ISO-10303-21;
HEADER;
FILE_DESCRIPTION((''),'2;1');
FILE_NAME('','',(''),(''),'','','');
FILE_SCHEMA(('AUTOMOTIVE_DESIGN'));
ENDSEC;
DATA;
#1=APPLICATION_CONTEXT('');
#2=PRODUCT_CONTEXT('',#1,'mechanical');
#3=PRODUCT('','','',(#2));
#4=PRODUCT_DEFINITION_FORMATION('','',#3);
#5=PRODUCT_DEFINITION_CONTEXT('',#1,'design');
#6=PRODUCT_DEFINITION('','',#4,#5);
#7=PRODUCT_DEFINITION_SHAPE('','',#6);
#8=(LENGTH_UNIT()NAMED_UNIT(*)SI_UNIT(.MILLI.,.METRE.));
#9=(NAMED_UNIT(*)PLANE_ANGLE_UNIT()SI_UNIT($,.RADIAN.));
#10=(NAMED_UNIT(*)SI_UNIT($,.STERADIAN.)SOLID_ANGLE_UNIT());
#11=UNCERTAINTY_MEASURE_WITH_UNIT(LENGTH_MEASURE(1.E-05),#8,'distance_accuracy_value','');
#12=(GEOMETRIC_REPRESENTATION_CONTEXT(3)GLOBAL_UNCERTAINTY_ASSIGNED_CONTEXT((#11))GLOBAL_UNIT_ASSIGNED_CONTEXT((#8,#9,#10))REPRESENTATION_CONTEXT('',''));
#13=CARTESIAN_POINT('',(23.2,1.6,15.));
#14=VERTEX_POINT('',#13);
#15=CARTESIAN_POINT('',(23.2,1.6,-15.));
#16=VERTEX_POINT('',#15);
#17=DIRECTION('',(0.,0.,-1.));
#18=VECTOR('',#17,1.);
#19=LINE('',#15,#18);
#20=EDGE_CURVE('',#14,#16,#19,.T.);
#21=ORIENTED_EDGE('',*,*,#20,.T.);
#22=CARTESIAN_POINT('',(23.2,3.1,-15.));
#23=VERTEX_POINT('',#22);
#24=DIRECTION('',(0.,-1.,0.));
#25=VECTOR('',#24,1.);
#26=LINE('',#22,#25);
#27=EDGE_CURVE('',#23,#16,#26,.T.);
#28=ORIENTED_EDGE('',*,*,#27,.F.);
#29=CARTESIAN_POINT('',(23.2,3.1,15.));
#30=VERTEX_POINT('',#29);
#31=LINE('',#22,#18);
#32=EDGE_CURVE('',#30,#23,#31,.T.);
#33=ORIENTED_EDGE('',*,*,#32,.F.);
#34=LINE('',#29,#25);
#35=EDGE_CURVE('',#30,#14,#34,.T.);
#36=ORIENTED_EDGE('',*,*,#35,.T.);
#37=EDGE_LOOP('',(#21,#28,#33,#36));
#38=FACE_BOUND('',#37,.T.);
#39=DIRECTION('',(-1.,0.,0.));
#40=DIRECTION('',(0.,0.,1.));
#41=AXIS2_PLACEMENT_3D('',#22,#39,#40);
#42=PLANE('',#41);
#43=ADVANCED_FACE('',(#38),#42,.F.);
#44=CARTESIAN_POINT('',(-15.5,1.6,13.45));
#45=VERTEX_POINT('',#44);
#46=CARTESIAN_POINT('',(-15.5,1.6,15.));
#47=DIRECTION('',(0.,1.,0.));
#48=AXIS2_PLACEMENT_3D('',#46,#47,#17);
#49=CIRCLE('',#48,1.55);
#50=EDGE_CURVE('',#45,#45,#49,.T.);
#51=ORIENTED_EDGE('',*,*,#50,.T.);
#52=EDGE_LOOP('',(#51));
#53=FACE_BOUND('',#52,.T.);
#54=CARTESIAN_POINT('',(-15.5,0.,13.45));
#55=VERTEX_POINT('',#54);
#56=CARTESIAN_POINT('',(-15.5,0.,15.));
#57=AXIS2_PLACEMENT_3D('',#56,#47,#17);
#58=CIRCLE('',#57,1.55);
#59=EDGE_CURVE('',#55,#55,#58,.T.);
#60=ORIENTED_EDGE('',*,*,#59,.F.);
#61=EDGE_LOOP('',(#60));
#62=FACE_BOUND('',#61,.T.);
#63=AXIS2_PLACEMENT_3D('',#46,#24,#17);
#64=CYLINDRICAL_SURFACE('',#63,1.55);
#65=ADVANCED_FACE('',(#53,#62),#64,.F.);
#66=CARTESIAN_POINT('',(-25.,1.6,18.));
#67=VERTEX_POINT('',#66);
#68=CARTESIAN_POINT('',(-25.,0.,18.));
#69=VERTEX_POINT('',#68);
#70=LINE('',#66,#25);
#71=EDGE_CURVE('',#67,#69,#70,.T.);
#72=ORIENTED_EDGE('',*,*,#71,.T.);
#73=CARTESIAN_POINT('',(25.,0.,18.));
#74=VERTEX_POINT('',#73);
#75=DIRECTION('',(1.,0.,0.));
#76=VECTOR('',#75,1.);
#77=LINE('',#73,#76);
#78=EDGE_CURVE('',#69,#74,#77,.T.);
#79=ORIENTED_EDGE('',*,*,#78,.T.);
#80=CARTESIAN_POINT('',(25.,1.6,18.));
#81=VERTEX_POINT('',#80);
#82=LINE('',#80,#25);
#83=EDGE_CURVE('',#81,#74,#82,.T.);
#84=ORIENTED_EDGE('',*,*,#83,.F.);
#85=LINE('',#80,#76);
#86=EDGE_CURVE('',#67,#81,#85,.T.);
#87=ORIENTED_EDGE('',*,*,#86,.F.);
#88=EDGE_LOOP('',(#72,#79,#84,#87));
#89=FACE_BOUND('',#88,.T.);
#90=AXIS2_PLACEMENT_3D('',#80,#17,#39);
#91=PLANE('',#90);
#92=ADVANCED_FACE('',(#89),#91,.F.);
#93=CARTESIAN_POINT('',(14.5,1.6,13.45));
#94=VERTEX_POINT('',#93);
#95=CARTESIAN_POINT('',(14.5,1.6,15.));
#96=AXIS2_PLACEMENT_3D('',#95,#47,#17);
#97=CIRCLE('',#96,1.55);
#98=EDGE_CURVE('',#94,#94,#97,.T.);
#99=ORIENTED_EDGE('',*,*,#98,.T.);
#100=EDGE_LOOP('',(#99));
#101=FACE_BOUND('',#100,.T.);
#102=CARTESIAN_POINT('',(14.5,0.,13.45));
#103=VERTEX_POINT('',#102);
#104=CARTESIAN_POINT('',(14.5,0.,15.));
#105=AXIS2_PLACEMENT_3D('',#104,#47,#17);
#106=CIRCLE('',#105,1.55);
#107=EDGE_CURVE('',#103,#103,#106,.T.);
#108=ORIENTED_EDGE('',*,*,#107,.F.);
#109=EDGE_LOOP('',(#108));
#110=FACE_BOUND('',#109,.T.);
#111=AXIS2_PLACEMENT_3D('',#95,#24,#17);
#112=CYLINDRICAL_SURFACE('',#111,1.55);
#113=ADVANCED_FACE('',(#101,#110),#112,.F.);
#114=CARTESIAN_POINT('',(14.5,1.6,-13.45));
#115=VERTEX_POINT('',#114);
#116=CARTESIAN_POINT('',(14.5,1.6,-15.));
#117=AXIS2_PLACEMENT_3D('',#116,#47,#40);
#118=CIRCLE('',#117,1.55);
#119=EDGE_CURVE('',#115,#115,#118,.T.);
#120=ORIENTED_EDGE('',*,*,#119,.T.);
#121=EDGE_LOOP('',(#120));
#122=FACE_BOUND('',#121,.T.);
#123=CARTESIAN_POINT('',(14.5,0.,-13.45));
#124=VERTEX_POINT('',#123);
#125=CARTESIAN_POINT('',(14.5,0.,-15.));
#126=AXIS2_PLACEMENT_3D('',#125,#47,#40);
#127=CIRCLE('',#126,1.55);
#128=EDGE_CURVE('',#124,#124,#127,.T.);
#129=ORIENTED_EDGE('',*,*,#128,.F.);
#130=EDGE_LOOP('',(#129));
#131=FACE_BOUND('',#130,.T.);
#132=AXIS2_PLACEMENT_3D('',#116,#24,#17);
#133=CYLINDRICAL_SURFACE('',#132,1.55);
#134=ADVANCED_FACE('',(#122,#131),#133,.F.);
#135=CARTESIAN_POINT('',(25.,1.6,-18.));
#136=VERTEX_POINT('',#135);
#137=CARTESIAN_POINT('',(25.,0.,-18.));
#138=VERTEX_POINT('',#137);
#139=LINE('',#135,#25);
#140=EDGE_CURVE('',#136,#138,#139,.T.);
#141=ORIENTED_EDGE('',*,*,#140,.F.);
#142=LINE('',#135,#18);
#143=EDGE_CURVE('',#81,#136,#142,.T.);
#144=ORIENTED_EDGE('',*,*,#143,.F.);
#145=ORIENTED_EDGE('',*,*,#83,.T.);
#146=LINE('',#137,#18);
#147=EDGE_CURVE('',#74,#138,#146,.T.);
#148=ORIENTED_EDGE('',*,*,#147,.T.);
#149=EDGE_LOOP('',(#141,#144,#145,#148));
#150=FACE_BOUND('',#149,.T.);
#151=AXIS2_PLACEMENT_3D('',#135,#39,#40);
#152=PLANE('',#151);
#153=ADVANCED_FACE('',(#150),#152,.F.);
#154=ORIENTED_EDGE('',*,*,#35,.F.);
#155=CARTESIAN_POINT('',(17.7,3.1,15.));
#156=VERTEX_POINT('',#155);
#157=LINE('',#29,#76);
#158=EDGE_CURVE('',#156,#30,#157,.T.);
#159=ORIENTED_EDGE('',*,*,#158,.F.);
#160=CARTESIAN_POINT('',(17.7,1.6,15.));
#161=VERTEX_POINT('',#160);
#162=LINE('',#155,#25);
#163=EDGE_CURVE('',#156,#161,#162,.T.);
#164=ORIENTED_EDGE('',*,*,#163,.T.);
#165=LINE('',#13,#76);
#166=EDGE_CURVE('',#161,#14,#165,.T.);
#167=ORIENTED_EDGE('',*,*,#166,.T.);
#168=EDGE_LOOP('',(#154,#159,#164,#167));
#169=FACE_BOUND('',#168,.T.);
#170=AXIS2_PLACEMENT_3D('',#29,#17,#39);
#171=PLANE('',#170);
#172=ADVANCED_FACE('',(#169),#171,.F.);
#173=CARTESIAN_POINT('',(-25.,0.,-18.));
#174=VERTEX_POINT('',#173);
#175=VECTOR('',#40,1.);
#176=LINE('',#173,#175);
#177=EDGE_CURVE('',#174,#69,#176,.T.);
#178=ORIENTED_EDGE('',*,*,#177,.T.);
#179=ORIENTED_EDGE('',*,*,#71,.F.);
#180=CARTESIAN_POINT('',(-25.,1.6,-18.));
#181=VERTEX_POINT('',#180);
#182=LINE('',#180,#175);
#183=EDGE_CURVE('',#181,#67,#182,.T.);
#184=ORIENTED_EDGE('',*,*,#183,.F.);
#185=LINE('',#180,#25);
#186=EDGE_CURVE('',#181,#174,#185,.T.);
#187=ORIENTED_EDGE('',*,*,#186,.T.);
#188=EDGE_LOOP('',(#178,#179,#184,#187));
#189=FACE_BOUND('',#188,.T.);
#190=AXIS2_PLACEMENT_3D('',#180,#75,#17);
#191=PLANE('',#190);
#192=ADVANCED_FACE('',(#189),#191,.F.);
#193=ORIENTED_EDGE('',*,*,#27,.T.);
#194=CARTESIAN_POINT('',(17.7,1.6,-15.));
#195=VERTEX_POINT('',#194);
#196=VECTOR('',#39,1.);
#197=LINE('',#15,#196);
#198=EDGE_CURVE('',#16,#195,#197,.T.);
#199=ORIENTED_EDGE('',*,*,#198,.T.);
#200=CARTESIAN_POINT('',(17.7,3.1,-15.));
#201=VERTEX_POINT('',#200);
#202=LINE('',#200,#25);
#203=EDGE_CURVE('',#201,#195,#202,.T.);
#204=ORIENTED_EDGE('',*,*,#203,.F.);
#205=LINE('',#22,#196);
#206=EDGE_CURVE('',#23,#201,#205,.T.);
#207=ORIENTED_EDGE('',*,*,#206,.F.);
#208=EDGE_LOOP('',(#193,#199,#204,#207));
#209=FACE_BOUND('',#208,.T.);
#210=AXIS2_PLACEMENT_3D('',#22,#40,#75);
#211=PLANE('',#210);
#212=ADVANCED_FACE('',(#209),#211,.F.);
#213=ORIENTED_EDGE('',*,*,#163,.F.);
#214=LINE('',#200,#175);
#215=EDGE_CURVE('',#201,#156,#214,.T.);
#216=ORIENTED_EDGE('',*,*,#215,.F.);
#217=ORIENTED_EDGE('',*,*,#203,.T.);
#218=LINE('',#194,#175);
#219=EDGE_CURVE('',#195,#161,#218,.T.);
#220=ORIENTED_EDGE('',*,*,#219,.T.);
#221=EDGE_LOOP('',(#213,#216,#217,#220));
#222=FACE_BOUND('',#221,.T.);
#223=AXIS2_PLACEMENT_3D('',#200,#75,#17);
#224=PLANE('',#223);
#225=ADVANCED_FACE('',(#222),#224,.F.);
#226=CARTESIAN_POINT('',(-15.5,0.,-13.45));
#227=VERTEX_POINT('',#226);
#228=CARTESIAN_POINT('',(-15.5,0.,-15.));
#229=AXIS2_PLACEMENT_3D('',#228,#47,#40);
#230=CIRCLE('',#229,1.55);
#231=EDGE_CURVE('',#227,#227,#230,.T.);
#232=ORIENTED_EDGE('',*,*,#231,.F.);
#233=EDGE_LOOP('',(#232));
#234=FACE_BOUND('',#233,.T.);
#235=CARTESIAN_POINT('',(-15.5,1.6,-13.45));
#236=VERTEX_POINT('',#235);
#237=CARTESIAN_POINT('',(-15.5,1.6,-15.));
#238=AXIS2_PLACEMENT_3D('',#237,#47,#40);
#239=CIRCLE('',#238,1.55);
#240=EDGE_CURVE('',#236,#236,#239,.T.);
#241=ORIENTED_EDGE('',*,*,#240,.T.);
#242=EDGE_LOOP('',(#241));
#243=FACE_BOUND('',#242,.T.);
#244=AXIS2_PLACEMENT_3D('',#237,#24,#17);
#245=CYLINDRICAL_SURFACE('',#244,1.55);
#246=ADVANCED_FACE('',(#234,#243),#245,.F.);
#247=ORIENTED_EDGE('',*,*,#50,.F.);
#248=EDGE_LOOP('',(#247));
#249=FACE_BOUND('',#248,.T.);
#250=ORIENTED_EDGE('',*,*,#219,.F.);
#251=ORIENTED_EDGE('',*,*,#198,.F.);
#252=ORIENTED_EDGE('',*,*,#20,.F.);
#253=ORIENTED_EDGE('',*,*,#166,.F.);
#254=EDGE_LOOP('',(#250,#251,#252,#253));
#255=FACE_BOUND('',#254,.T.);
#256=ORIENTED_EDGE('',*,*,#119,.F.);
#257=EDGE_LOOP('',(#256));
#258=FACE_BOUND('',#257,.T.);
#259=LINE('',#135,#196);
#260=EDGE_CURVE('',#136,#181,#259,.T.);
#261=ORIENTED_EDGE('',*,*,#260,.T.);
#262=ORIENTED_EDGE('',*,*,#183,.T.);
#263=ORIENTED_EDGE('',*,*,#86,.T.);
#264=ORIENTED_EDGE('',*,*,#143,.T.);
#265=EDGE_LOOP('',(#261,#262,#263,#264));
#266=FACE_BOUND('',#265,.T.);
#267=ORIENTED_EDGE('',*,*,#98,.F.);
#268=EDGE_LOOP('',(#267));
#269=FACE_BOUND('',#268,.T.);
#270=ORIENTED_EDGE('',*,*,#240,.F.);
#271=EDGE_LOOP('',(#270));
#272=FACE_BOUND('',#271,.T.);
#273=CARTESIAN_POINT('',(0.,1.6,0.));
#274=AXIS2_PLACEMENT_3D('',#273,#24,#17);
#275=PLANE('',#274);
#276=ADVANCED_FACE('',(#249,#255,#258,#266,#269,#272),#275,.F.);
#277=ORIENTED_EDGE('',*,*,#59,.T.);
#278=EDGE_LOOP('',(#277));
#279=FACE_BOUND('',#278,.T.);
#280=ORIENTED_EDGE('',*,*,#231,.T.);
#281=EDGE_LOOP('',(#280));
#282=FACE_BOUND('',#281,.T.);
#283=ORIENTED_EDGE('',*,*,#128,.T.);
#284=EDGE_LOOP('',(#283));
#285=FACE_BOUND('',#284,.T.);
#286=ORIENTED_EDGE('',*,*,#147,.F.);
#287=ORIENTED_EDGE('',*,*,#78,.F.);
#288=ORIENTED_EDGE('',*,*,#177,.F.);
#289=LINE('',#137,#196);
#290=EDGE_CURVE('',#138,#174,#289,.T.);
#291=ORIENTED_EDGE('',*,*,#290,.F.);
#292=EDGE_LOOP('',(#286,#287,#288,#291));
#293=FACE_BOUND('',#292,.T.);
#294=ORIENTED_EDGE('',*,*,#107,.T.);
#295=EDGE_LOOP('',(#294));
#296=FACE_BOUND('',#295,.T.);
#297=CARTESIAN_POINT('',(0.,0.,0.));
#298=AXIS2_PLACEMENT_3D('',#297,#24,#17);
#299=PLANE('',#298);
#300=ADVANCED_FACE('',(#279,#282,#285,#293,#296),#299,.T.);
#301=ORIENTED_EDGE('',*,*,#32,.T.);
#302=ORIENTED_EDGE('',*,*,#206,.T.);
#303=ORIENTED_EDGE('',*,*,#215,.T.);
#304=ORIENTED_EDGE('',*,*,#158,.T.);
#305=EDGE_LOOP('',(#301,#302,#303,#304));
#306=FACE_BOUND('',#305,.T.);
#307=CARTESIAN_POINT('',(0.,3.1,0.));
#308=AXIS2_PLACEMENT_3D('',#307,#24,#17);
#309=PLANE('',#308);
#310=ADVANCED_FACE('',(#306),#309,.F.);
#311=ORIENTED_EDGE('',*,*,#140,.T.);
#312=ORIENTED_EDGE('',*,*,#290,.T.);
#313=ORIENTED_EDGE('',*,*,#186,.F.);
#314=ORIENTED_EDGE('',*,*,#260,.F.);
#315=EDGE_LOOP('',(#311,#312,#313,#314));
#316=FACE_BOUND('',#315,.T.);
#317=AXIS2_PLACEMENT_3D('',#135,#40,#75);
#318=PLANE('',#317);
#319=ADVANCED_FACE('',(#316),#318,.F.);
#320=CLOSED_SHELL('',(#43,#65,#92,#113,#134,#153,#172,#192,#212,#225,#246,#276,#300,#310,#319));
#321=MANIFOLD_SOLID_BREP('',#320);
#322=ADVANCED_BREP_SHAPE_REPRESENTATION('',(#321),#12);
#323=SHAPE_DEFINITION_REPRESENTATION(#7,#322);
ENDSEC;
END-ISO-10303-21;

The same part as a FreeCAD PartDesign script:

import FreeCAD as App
import Part
import Sketcher

V = App.Vector
Q = App.Units.Quantity


def add_polygon(sketch, points):
    """Adds a closed chain of lines whose ends are joined by coincident constraints."""
    first, n = sketch.GeometryCount, len(points)
    for a, b in zip(points, points[1:] + points[:1]):
        sketch.addGeometry(Part.LineSegment(App.Vector(*a, 0), App.Vector(*b, 0)), False)
    for i in range(n):
        sketch.addConstraint(Sketcher.Constraint("Coincident", first + i, 2, first + (i + 1) % n, 1))

doc = App.newDocument("Part")
body = doc.addObject("PartDesign::Body", "Body")

# Sketch on XZ plane
sketch1 = body.newObject("Sketcher::SketchObject", "Sketch")
sketch1.AttachmentSupport = (doc.getObject("XZ_Plane"), [""])
sketch1.MapMode = "FlatFace"
add_polygon(sketch1, [(-25, -18), (-25, 18), (25, 18), (25, -18)])  # lines 0-3
sketch1.addGeometry(Part.Circle(V(-15.5, 15, 0), V(0, 0, 1), 1.6), False)  # 4
sketch1.addGeometry(Part.Circle(V(14.5, 15, 0), V(0, 0, 1), 1.6), False)  # 5
sketch1.addGeometry(Part.Circle(V(-15.5, -15, 0), V(0, 0, 1), 1.6), False)  # 6
sketch1.addGeometry(Part.Circle(V(14.5, -15, 0), V(0, 0, 1), 1.6), False)  # 7
sketch1.addConstraint([
    Sketcher.Constraint("Vertical", 0),
    Sketcher.Constraint("Horizontal", 1),
    Sketcher.Constraint("Vertical", 2),
    Sketcher.Constraint("Horizontal", 3),
    Sketcher.Constraint("Equal", 4, 5),
    Sketcher.Constraint("Equal", 5, 6),
    Sketcher.Constraint("Equal", 6, 7),
    Sketcher.Constraint("Symmetric", 0, 2, 2, 2, -1, 1),
    Sketcher.Constraint("Symmetric", 4, 3, 6, 3, -1),
    Sketcher.Constraint("Symmetric", 5, 3, 7, 3, -1),
    Sketcher.Constraint("Horizontal", 4, 3, 5, 3),
    Sketcher.Constraint("Diameter", 4, Q("3.1 mm")),
    Sketcher.Constraint("DistanceX", 1, 1, 1, 2, Q("50 mm")),
    Sketcher.Constraint("DistanceY", 0, 1, 0, 2, Q("36 mm")),
    Sketcher.Constraint("DistanceY", -1, 1, 4, 3, Q("15 mm")),
    Sketcher.Constraint("DistanceX", 4, 3, 5, 3, Q("30 mm")),
    Sketcher.Constraint("DistanceX", 4, 3, -1, 1, Q("15.5 mm")),
])
pad1 = body.newObject("PartDesign::Pad", "Pad")
pad1.Profile = sketch1
pad1.Length = 1.6
pad1.Reversed = True

# Sketch on XZ plane
sketch2 = body.newObject("Sketcher::SketchObject", "Sketch001")
sketch2.AttachmentSupport = (doc.getObject("XZ_Plane"), [""])
sketch2.MapMode = "FlatFace"
sketch2.AttachmentOffset = App.Placement(V(0, 0, -1.6), App.Rotation())
add_polygon(sketch2, [(18, -15), (18, 15), (23, 15), (23, -15)])  # lines 0-3
sketch2.addConstraint([
    Sketcher.Constraint("Vertical", 0),
    Sketcher.Constraint("Horizontal", 1),
    Sketcher.Constraint("Vertical", 2),
    Sketcher.Constraint("Horizontal", 3),
    Sketcher.Constraint("DistanceY", 0, 1, 0, 2, Q("30 mm")),
    Sketcher.Constraint("DistanceX", 1, 1, 1, 2, Q("5.5 mm")),
    Sketcher.Constraint("DistanceY", -1, 1, 0, 2, Q("15 mm")),
    Sketcher.Constraint("DistanceX", -1, 1, 0, 2, Q("17.7 mm")),
])
pad2 = body.newObject("PartDesign::Pad", "Pad001")
pad2.Profile = sketch2
pad2.Length = 1.5
pad2.Reversed = True

doc.recompute()
